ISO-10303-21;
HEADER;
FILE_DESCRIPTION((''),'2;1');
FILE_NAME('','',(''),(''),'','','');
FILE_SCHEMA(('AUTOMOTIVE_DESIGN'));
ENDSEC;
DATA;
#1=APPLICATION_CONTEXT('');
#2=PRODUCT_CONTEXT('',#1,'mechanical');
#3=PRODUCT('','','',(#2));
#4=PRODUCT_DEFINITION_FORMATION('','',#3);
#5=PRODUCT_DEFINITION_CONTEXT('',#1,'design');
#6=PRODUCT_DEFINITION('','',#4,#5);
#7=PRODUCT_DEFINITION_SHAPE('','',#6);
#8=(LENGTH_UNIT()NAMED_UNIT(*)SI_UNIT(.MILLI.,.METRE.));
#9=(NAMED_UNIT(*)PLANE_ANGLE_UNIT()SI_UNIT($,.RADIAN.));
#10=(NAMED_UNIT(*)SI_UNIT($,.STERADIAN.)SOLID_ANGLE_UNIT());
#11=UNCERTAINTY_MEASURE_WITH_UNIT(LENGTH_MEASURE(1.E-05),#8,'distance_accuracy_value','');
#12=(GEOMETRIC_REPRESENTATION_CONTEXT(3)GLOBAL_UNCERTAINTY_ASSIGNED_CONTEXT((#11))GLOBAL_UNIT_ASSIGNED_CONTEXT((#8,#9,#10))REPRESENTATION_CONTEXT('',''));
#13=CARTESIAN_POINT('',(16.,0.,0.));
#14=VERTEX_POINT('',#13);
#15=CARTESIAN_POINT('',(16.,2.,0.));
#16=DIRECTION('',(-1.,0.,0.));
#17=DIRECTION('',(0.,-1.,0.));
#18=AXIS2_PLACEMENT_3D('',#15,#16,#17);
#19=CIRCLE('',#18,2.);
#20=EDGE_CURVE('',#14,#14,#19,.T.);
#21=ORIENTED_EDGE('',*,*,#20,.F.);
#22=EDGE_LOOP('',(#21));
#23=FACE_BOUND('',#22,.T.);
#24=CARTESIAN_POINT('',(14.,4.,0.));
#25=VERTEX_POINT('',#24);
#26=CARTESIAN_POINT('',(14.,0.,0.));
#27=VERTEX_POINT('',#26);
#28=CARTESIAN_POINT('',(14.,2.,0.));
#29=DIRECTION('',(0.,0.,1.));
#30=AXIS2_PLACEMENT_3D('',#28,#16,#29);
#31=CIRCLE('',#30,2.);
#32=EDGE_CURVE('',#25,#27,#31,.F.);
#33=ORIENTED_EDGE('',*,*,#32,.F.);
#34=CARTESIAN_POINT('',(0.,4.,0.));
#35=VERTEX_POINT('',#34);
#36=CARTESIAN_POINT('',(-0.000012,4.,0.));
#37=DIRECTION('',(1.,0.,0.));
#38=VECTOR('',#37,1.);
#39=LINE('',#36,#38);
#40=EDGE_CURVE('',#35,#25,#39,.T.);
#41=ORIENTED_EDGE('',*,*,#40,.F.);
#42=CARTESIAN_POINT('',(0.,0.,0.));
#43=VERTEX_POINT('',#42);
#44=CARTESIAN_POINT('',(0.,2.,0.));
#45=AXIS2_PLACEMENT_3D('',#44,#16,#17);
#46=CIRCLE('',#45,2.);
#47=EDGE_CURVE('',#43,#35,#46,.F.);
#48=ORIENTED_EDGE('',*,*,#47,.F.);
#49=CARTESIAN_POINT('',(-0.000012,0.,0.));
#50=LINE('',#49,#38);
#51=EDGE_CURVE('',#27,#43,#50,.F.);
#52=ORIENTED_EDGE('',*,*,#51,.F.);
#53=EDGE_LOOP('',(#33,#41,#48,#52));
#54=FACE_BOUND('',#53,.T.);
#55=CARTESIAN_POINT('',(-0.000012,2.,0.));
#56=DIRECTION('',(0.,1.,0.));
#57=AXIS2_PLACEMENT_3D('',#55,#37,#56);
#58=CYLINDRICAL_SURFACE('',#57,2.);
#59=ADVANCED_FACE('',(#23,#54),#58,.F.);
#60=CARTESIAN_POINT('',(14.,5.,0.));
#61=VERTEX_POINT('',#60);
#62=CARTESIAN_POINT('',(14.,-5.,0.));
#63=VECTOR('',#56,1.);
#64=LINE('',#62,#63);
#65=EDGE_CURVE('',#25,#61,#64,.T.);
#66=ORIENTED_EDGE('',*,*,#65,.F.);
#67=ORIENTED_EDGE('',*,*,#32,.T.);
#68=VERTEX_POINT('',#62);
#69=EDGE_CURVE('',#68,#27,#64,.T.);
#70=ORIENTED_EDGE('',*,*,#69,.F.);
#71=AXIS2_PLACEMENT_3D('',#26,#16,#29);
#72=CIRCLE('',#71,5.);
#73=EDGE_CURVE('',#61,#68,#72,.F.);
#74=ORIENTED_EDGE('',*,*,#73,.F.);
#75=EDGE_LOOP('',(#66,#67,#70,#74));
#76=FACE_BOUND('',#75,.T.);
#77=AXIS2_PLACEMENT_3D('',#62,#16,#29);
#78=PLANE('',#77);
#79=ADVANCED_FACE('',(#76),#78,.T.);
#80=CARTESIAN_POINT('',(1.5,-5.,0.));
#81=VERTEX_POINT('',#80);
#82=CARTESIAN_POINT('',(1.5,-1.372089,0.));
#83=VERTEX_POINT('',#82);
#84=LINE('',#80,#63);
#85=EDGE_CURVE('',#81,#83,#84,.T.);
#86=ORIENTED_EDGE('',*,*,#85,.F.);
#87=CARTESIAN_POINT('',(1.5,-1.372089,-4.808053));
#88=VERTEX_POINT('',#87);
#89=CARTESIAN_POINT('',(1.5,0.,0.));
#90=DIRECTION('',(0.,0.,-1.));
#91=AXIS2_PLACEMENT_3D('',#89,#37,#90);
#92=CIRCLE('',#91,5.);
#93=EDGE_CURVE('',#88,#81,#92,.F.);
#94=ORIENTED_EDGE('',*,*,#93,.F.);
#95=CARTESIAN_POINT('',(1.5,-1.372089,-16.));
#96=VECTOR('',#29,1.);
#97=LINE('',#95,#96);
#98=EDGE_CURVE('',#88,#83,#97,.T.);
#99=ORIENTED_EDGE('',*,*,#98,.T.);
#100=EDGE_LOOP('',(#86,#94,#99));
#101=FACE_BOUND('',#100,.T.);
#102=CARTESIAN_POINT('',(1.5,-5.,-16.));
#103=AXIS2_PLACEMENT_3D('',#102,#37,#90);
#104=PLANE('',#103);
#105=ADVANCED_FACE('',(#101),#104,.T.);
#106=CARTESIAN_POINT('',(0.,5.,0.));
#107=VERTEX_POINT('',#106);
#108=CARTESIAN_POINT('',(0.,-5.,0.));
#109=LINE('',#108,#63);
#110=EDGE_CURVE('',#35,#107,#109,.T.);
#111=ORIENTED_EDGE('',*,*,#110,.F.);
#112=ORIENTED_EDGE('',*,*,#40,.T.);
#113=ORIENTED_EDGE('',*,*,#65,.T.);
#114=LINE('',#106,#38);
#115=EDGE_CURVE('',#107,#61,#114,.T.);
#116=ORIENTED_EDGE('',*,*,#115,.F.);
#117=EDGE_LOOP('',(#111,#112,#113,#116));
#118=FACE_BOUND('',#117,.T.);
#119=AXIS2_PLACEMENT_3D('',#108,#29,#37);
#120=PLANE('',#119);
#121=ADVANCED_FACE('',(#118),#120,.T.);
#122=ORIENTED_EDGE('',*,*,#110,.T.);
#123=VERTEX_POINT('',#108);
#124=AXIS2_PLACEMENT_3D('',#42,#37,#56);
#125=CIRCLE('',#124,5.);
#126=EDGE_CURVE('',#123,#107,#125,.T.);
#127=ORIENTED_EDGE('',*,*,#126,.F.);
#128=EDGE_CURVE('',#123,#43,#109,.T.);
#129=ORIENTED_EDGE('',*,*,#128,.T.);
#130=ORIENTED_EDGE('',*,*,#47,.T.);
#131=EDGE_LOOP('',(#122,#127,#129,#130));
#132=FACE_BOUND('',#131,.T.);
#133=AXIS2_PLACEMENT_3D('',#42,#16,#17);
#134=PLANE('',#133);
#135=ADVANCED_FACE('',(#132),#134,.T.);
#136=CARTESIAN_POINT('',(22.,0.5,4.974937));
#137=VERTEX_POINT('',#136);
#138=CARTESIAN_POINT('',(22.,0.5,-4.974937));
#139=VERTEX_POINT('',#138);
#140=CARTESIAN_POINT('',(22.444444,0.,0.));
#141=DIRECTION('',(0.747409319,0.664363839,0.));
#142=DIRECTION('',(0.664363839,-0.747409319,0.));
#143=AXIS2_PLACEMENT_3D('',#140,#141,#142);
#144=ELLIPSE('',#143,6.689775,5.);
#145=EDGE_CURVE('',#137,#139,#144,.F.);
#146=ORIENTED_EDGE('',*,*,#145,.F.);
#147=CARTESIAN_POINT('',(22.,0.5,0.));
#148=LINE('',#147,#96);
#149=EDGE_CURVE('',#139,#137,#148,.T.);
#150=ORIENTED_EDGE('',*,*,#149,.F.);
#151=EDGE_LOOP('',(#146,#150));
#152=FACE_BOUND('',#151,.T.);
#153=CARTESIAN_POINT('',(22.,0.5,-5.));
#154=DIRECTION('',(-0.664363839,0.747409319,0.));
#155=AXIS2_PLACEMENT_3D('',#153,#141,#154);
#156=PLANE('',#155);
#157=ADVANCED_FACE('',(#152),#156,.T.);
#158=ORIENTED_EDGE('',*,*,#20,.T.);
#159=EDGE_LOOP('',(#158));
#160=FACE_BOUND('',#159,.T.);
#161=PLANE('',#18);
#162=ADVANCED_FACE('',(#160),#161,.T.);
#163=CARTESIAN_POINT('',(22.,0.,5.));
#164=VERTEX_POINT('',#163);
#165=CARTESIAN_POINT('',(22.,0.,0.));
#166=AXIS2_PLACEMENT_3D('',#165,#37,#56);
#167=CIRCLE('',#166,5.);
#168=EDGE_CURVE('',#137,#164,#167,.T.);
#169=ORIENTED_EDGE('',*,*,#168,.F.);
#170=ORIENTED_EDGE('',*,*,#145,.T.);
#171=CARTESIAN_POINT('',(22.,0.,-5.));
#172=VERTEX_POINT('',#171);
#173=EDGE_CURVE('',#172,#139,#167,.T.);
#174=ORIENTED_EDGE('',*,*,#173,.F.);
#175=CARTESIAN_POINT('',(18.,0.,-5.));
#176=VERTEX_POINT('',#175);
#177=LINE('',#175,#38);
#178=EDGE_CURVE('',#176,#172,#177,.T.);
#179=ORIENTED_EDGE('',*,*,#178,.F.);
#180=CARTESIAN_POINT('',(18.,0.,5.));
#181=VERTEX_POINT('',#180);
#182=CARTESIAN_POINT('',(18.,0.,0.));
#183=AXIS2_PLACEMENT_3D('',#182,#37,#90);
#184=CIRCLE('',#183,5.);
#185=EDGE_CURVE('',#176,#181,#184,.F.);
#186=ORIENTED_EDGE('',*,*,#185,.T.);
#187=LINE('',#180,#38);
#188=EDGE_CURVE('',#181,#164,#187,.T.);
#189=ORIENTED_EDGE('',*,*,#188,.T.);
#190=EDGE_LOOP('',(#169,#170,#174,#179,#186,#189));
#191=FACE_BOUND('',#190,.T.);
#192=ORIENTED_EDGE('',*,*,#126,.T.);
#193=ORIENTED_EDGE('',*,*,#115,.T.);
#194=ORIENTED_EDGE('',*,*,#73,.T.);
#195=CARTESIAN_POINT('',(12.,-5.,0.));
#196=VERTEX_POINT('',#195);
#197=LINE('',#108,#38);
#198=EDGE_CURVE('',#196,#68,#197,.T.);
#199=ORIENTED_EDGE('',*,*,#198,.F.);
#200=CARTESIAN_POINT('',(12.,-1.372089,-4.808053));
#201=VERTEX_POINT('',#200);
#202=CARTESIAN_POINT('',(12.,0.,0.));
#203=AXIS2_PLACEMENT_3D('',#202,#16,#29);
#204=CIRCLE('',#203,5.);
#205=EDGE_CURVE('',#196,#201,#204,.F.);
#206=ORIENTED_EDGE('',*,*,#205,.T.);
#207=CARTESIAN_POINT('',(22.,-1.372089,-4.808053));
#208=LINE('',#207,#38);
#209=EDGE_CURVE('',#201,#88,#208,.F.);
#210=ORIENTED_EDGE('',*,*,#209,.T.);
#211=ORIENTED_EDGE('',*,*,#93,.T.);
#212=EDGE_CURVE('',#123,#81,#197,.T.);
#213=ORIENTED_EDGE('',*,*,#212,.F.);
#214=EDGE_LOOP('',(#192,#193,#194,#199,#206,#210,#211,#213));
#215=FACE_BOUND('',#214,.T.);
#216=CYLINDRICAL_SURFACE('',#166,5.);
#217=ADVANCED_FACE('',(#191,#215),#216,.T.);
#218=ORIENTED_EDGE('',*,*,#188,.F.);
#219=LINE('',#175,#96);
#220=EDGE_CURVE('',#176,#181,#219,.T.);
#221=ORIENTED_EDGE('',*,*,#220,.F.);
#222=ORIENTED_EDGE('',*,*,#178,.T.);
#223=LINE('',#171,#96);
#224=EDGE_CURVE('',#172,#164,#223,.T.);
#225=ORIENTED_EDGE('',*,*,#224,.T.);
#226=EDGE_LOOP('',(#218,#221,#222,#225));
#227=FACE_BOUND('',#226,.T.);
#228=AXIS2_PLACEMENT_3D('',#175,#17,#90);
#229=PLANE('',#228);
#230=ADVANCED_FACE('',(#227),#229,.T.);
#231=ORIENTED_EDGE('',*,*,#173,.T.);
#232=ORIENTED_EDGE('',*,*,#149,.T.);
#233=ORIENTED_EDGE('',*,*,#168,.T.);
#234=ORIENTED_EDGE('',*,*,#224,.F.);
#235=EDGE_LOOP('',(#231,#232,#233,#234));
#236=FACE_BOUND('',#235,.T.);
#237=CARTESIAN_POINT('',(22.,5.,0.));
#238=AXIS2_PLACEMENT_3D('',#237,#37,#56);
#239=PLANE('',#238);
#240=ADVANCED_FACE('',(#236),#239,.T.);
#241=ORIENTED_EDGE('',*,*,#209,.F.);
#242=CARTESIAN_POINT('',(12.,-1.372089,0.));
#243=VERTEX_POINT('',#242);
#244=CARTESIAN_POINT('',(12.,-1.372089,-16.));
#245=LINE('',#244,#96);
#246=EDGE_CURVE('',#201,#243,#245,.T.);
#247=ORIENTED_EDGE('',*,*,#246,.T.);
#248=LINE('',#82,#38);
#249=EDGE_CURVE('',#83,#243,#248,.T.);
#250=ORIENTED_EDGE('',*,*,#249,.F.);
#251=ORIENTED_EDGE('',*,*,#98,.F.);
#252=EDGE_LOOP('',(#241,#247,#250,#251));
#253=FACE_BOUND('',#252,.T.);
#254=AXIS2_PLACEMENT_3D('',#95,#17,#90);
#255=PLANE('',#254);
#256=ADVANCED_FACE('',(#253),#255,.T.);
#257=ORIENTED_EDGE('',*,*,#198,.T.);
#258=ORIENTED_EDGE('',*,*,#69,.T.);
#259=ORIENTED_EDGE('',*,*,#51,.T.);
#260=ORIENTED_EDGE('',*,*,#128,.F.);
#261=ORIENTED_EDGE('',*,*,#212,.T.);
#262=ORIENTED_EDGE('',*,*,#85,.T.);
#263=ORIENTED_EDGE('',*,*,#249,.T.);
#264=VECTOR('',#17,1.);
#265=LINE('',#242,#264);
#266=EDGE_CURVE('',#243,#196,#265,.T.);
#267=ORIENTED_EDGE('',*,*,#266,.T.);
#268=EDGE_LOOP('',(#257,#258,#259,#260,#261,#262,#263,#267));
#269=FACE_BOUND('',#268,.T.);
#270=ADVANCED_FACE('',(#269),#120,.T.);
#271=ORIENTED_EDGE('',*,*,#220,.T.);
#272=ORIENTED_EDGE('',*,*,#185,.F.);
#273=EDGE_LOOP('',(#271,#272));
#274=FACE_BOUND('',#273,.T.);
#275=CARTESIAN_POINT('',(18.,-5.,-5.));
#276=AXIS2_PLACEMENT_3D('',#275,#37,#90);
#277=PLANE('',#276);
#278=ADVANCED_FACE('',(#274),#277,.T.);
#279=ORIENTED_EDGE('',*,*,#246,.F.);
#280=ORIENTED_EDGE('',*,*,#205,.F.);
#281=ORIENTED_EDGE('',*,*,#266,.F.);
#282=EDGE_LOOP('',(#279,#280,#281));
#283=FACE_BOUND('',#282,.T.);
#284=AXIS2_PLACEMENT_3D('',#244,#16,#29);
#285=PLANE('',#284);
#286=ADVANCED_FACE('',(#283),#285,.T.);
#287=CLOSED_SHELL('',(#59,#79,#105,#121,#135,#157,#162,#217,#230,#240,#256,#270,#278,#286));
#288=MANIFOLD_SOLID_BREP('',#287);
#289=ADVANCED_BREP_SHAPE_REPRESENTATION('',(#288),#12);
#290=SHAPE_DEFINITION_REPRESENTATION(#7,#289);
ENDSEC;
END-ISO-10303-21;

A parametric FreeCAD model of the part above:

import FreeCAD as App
import Part
import Sketcher
from FreeCAD import Vector

doc = App.newDocument("Part")
body = doc.addObject("PartDesign::Body", "Body")

# Sketch on XY plane
sketch1 = body.newObject("Sketcher::SketchObject", "Sketch")
sketch1.AttachmentSupport = (doc.getObject("XY_Plane"), [""])
sketch1.MapMode = "FlatFace"
sketch1.addGeometry(Part.LineSegment(Vector(0, 5, 0), Vector(0, 0, 0)), False)
sketch1.addGeometry(Part.LineSegment(Vector(0, 0, 0), Vector(22, 0, 0)), False)
sketch1.addGeometry(Part.LineSegment(Vector(22, 0, 0), Vector(22, 5, 0)), False)
sketch1.addGeometry(Part.LineSegment(Vector(22, 5, 0), Vector(0, 5, 0)), False)
sketch1.addConstraint(Sketcher.Constraint("Coincident", 0, 2, 1, 1))
sketch1.addConstraint(Sketcher.Constraint("Coincident", 1, 2, 2, 1))
sketch1.addConstraint(Sketcher.Constraint("Coincident", 2, 2, 3, 1))
sketch1.addConstraint(Sketcher.Constraint("Coincident", 3, 2, 0, 1))
sketch1.addConstraint(Sketcher.Constraint("Vertical", 0))
sketch1.addConstraint(Sketcher.Constraint("Horizontal", 1))
sketch1.addConstraint(Sketcher.Constraint("Vertical", 2))
sketch1.addConstraint(Sketcher.Constraint("Horizontal", 3))
sketch1.addConstraint(Sketcher.Constraint("Coincident", 0, 2, -1, 1))
sketch1.addConstraint(Sketcher.Constraint("DistanceX", 1, 1, 1, 2, 22.0))
sketch1.addConstraint(Sketcher.Constraint("DistanceY", 0, 2, 0, 1, 5.0))
revolution = body.newObject("PartDesign::Revolution", "Revolution")
revolution.Profile = sketch1
revolution.ReferenceAxis = (sketch1, ["H_Axis"])
revolution.Angle = 360

# Sketch on XY plane
sketch2 = body.newObject("Sketcher::SketchObject", "Sketch001")
sketch2.AttachmentSupport = (doc.getObject("XY_Plane"), [""])
sketch2.MapMode = "FlatFace"
sketch2.addGeometry(Part.LineSegment(Vector(18, 0, 0), Vector(18, -5, 0)), False)
sketch2.addGeometry(Part.LineSegment(Vector(18, -5, 0), Vector(22, -5, 0)), False)
sketch2.addGeometry(Part.LineSegment(Vector(22, -5, 0), Vector(22, 0, 0)), False)
sketch2.addGeometry(Part.LineSegment(Vector(22, 0, 0), Vector(18, 0, 0)), False)
sketch2.addGeometry(Part.LineSegment(Vector(18, 5, 0), Vector(22, 0.5, 0)), False)
sketch2.addGeometry(Part.LineSegment(Vector(22, 0.5, 0), Vector(22, 5, 0)), False)
sketch2.addGeometry(Part.LineSegment(Vector(22, 5, 0), Vector(18, 5, 0)), False)
sketch2.addConstraint(Sketcher.Constraint("Coincident", 0, 2, 1, 1))
sketch2.addConstraint(Sketcher.Constraint("Coincident", 1, 2, 2, 1))
sketch2.addConstraint(Sketcher.Constraint("Coincident", 2, 2, 3, 1))
sketch2.addConstraint(Sketcher.Constraint("Coincident", 3, 2, 0, 1))
sketch2.addConstraint(Sketcher.Constraint("Coincident", 4, 2, 5, 1))
sketch2.addConstraint(Sketcher.Constraint("Coincident", 5, 2, 6, 1))
sketch2.addConstraint(Sketcher.Constraint("Coincident", 6, 2, 4, 1))
sketch2.addConstraint(Sketcher.Constraint("Vertical", 0))
sketch2.addConstraint(Sketcher.Constraint("Horizontal", 1))
sketch2.addConstraint(Sketcher.Constraint("Vertical", 2))
sketch2.addConstraint(Sketcher.Constraint("Horizontal", 3))
sketch2.addConstraint(Sketcher.Constraint("Vertical", 5))
sketch2.addConstraint(Sketcher.Constraint("Horizontal", 6))
sketch2.addConstraint(Sketcher.Constraint("Symmetric", 1, 2, 5, 2, -1))
sketch2.addConstraint(Sketcher.Constraint("PointOnObject", 2, 2, -1))
sketch2.addConstraint(Sketcher.Constraint("Vertical", 3, 2, 6, 2))
sketch2.addConstraint(Sketcher.Constraint("DistanceX", 1, 1, 1, 2, 4.0))
sketch2.addConstraint(Sketcher.Constraint("DistanceY", 0, 2, 0, 1, 5.0))
sketch2.addConstraint(Sketcher.Constraint("DistanceY", 5, 1, 5, 2, 4.5))
sketch2.addConstraint(Sketcher.Constraint("DistanceX", -1, 1, 0, 2, 18.0))
pocket1 = body.newObject("PartDesign::Pocket", "Pocket")
pocket1.Profile = sketch2
pocket1.Type = "ThroughAll"
pocket1.Midplane = True

# Sketch on XZ plane
sketch3 = body.newObject("Sketcher::SketchObject", "Sketch002")
sketch3.AttachmentSupport = (doc.getObject("XZ_Plane"), [""])
sketch3.MapMode = "FlatFace"
sketch3.addGeometry(Part.LineSegment(Vector(0, 0, 0), Vector(0, 5, 0)), False)
sketch3.addGeometry(Part.LineSegment(Vector(0, 5, 0), Vector(14, 5, 0)), False)
sketch3.addGeometry(Part.LineSegment(Vector(14, 5, 0), Vector(14, 0, 0)), False)
sketch3.addGeometry(Part.LineSegment(Vector(14, 0, 0), Vector(0, 0, 0)), False)
sketch3.addConstraint(Sketcher.Constraint("Coincident", 0, 2, 1, 1))
sketch3.addConstraint(Sketcher.Constraint("Coincident", 1, 2, 2, 1))
sketch3.addConstraint(Sketcher.Constraint("Coincident", 2, 2, 3, 1))
sketch3.addConstraint(Sketcher.Constraint("Coincident", 3, 2, 0, 1))
sketch3.addConstraint(Sketcher.Constraint("Vertical", 0))
sketch3.addConstraint(Sketcher.Constraint("Horizontal", 1))
sketch3.addConstraint(Sketcher.Constraint("Vertical", 2))
sketch3.addConstraint(Sketcher.Constraint("Horizontal", 3))
sketch3.addConstraint(Sketcher.Constraint("Coincident", 3, 2, -1, 1))
sketch3.addConstraint(Sketcher.Constraint("DistanceX", 1, 1, 1, 2, 14.0))
sketch3.addConstraint(Sketcher.Constraint("DistanceY", 0, 1, 0, 2, 5.0))
pocket2 = body.newObject("PartDesign::Pocket", "Pocket001")
pocket2.Profile = sketch3
pocket2.Type = "ThroughAll"
pocket2.Midplane = True

# Sketch on YZ plane
sketch4 = body.newObject("Sketcher::SketchObject", "Sketch003")
sketch4.AttachmentSupport = (doc.getObject("YZ_Plane"), [""])
sketch4.MapMode = "FlatFace"
sketch4.addGeometry(Part.Circle(Vector(2, 0, 0), Vector(0, 0, 1), 2), False)
sketch4.addConstraint(Sketcher.Constraint("PointOnObject", 0, 3, -1))
sketch4.addConstraint(Sketcher.Constraint("Diameter", 0, 4.0))
sketch4.addConstraint(Sketcher.Constraint("DistanceX", -1, 1, 0, 3, 2.0))
pocket3 = body.newObject("PartDesign::Pocket", "Pocket002")
pocket3.Profile = sketch4
pocket3.Type = "TwoLengths"
pocket3.Length = 24.10844
pocket3.Length2 = 16

# Sketch on XY plane
sketch5 = body.newObject("Sketcher::SketchObject", "Sketch004")
sketch5.AttachmentSupport = (doc.getObject("XY_Plane"), [""])
sketch5.MapMode = "FlatFace"
sketch5.addGeometry(Part.LineSegment(Vector(1.5, -1.4, 0), Vector(1.5, -5, 0)), False)
sketch5.addGeometry(Part.LineSegment(Vector(1.5, -5, 0), Vector(12, -5, 0)), False)
sketch5.addGeometry(Part.LineSegment(Vector(12, -5, 0), Vector(12, -1.4, 0)), False)
sketch5.addGeometry(Part.LineSegment(Vector(12, -1.4, 0), Vector(1.5, -1.4, 0)), False)
sketch5.addConstraint(Sketcher.Constraint("Coincident", 0, 2, 1, 1))
sketch5.addConstraint(Sketcher.Constraint("Coincident", 1, 2, 2, 1))
sketch5.addConstraint(Sketcher.Constraint("Coincident", 2, 2, 3, 1))
sketch5.addConstraint(Sketcher.Constraint("Coincident", 3, 2, 0, 1))
sketch5.addConstraint(Sketcher.Constraint("Vertical", 0))
sketch5.addConstraint(Sketcher.Constraint("Horizontal", 1))
sketch5.addConstraint(Sketcher.Constraint("Vertical", 2))
sketch5.addConstraint(Sketcher.Constraint("Horizontal", 3))
sketch5.addConstraint(Sketcher.Constraint("DistanceX", 1, 1, 1, 2, 10.5))
sketch5.addConstraint(Sketcher.Constraint("DistanceY", 0, 2, -1, 1, 5.0))
sketch5.addConstraint(Sketcher.Constraint("DistanceX", -1, 1, 1, 2, 12.0))
sketch5.addConstraint(Sketcher.Constraint("DistanceY", 0, 2, 0, 1, 3.627911))
pocket4 = body.newObject("PartDesign::Pocket", "Pocket003")
pocket4.Profile = sketch5
pocket4.Length = 16

doc.recompute()
